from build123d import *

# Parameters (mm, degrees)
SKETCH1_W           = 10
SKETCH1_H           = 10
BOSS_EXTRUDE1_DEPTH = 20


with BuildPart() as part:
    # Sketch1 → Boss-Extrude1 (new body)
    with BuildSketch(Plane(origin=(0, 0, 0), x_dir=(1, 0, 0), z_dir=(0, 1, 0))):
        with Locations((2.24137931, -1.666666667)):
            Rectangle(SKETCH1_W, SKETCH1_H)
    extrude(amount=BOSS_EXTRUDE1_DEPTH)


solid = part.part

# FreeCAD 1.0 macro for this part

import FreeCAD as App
import Part
import Sketcher
from FreeCAD import Vector

doc = App.newDocument("Part")
body = doc.addObject("PartDesign::Body", "Body")

# Sketch on XZ plane
sketch1 = doc.addObject("Sketcher::SketchObject", "Sketch")
body.addObject(sketch1)
sketch1.AttachmentSupport = (doc.XZ_Plane, [""])
sketch1.MapMode = "FlatFace"
sketch1.addGeometry(Part.LineSegment(Vector(-3, -3, 0), Vector(-3, 7, 0)), False)
sketch1.addGeometry(Part.LineSegment(Vector(-3, 7, 0), Vector(7, 7, 0)), False)
sketch1.addGeometry(Part.LineSegment(Vector(7, 7, 0), Vector(7, -3, 0)), False)
sketch1.addGeometry(Part.LineSegment(Vector(7, -3, 0), Vector(-3, -3, 0)), False)
sketch1.addConstraint(Sketcher.Constraint("Coincident", 0, 2, 1, 1))
sketch1.addConstraint(Sketcher.Constraint("Coincident", 1, 2, 2, 1))
sketch1.addConstraint(Sketcher.Constraint("Coincident", 2, 2, 3, 1))
sketch1.addConstraint(Sketcher.Constraint("Coincident", 3, 2, 0, 1))
sketch1.addConstraint(Sketcher.Constraint("Vertical", 0))
sketch1.addConstraint(Sketcher.Constraint("Horizontal", 1))
sketch1.addConstraint(Sketcher.Constraint("Vertical", 2))
sketch1.addConstraint(Sketcher.Constraint("Horizontal", 3))
sketch1.addConstraint(Sketcher.Constraint("Equal", 3, 0))
sketch1.addConstraint(Sketcher.Constraint("DistanceX", 1, 1, 1, 2, 10.0))
sketch1.addConstraint(Sketcher.Constraint("DistanceX", 0, 2, -1, 1, 2.758621))
sketch1.addConstraint(Sketcher.Constraint("DistanceY", -1, 1, 0, 2, 6.666667))
pad1 = doc.addObject("PartDesign::Pad", "Pad")
body.addObject(pad1)
pad1.Profile = sketch1
pad1.Length = 20
pad1.Reversed = True

doc.recompute()
